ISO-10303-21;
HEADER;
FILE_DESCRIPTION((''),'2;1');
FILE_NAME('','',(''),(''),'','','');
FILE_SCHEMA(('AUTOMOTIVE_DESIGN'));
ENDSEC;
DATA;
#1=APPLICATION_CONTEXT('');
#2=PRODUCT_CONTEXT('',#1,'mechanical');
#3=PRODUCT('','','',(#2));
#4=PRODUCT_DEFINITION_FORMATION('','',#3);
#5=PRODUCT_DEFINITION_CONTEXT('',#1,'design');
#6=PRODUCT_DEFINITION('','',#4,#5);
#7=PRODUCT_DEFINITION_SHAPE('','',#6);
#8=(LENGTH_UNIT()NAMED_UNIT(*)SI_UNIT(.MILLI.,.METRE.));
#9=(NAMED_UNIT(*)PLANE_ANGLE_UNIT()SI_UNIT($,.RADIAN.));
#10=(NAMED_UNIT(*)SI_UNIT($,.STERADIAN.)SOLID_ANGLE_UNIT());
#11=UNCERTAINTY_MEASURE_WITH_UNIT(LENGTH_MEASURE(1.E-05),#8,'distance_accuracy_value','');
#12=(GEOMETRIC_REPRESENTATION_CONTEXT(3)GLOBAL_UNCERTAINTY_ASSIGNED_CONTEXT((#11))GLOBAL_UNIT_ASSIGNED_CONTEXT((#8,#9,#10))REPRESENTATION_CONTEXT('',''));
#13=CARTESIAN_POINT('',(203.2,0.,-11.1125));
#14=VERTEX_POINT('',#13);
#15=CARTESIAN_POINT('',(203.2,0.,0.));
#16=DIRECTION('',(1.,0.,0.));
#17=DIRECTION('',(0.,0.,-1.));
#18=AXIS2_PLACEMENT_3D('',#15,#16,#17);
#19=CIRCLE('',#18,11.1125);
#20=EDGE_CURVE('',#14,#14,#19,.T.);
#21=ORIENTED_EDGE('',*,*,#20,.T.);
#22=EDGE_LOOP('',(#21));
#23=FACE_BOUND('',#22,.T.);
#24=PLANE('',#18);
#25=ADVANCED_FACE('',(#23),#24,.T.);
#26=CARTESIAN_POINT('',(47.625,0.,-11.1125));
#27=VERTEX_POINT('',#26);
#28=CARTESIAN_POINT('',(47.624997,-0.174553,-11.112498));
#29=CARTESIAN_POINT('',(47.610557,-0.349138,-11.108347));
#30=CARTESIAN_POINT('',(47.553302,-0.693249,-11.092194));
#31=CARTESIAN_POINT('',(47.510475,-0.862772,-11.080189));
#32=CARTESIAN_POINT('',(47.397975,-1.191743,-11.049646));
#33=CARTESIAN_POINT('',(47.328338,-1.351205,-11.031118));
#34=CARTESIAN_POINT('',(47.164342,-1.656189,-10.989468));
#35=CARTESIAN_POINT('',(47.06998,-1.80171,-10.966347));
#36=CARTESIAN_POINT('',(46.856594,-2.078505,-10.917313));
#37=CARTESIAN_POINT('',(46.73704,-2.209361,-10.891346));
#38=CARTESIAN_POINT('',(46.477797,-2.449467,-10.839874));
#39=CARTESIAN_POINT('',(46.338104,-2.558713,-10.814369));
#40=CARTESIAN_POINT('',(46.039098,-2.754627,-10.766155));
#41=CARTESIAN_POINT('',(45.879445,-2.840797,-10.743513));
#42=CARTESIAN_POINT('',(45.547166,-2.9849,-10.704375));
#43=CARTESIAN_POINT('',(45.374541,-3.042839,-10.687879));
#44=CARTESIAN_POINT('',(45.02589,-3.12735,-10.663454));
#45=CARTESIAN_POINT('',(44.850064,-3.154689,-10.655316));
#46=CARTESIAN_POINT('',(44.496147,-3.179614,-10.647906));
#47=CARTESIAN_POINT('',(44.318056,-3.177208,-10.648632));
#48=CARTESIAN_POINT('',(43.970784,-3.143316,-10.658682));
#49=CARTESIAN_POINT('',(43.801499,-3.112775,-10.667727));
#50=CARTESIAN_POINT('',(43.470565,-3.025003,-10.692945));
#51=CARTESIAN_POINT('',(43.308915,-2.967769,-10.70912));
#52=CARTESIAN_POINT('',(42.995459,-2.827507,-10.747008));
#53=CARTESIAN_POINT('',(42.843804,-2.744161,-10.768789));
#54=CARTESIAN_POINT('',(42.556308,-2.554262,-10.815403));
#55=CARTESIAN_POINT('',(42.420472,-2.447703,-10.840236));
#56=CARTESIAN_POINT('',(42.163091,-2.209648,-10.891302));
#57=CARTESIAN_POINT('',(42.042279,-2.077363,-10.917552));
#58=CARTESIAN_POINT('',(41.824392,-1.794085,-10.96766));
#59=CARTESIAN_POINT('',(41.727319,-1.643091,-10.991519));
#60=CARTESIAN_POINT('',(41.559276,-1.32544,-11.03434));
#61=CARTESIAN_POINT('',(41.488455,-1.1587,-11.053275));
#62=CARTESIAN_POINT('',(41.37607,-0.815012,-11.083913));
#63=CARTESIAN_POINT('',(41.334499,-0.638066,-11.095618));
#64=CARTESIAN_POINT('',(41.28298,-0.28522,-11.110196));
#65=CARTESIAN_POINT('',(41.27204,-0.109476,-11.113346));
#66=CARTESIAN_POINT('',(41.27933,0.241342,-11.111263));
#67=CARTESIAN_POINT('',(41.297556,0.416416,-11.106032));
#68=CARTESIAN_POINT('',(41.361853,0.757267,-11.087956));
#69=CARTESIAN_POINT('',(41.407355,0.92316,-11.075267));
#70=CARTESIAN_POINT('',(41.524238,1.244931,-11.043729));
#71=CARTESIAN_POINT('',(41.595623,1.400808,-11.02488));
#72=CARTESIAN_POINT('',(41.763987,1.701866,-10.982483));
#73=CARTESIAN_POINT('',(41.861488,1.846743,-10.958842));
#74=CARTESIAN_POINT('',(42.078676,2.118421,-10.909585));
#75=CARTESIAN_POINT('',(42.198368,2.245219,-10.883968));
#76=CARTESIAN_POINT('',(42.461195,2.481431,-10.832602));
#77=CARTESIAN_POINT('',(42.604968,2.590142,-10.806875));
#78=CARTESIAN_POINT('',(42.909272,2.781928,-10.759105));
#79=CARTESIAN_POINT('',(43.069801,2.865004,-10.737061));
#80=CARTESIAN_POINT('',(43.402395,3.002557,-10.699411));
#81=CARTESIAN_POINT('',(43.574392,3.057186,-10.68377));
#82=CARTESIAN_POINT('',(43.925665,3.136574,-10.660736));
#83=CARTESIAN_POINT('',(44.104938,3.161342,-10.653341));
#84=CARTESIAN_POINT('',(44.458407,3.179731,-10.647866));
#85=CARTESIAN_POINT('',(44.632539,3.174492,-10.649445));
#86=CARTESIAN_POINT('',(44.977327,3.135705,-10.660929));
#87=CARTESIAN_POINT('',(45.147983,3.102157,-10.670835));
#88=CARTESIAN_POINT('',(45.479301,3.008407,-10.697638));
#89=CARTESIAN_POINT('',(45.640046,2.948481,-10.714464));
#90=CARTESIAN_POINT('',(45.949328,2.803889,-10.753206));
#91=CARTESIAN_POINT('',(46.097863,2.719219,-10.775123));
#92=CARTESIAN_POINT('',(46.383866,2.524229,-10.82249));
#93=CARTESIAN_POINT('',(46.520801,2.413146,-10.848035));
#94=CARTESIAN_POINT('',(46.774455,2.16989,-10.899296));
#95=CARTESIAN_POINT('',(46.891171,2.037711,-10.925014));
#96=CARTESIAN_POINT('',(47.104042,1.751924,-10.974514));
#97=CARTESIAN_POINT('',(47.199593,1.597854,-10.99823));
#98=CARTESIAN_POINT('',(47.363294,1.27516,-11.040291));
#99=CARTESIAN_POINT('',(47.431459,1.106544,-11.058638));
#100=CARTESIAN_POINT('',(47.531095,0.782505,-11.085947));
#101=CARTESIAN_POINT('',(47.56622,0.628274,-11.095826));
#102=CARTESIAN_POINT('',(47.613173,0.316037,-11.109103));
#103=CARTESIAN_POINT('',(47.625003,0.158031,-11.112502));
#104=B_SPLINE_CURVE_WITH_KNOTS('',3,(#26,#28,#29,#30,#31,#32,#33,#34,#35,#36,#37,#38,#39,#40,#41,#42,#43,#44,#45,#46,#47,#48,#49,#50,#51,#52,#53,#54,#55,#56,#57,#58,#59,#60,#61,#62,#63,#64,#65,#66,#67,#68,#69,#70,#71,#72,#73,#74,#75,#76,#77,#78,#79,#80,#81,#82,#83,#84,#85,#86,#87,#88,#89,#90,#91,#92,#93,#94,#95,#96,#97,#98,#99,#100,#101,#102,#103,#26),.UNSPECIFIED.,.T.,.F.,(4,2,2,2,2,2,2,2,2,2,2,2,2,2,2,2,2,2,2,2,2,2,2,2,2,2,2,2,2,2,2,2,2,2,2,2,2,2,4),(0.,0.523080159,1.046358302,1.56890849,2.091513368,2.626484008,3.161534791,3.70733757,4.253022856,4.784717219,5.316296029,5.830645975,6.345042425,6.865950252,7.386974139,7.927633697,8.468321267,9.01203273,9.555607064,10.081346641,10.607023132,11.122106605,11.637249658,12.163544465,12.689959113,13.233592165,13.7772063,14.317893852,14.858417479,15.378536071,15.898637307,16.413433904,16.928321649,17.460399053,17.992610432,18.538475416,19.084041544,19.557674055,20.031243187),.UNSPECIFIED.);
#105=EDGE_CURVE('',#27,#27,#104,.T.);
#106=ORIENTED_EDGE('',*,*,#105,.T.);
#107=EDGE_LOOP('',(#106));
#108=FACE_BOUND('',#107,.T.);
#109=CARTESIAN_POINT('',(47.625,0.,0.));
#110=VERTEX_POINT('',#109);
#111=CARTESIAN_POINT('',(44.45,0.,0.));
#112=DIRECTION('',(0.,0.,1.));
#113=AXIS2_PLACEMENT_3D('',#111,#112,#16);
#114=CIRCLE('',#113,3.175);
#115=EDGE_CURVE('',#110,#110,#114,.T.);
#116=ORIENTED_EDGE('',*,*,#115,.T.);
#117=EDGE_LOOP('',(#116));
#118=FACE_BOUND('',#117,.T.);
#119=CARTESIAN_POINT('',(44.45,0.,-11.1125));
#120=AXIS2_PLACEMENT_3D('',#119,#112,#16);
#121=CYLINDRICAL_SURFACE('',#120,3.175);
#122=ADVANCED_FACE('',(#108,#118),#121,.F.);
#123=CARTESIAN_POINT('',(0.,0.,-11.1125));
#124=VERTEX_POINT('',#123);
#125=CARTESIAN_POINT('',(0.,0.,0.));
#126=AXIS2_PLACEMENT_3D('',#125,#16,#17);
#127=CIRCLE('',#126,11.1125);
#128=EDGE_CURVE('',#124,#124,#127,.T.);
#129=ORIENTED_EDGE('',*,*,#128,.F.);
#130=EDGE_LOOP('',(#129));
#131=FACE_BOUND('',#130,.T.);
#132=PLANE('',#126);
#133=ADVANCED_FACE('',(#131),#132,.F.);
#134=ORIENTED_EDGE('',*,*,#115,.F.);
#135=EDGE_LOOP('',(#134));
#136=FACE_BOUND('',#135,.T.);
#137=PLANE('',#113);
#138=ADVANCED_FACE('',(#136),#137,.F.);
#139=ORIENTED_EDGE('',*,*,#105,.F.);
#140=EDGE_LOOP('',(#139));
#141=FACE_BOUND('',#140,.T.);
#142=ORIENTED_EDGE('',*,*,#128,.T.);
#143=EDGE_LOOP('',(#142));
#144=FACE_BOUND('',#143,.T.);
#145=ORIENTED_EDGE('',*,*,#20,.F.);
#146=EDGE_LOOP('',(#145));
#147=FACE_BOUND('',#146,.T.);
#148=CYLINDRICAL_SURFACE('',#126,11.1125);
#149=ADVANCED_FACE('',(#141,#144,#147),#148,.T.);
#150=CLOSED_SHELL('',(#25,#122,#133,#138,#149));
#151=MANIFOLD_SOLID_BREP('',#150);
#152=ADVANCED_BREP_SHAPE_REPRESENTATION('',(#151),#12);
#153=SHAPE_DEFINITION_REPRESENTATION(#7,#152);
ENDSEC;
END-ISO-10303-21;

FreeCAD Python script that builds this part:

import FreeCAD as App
import Part
import Sketcher

V = App.Vector
Q = App.Units.Quantity

doc = App.newDocument("Part")
body = doc.addObject("PartDesign::Body", "Body")

# Sketch on YZ plane
sketch1 = doc.addObject("Sketcher::SketchObject", "Sketch")
body.addObject(sketch1)
sketch1.AttachmentSupport = (doc.YZ_Plane, [""])
sketch1.MapMode = "FlatFace"
sketch1.addGeometry(Part.Circle(V(0, 0, 0), V(0, 0, 1), 11.1125), False)
sketch1.addConstraint(Sketcher.Constraint("Coincident", 0, 3, -1, 1))
sketch1.addConstraint(Sketcher.Constraint("Diameter", 0, Q("0.875 in")))

# Sketch on XY plane
sketch2 = doc.addObject("Sketcher::SketchObject", "Sketch001")
body.addObject(sketch2)
sketch2.AttachmentSupport = (doc.XY_Plane, [""])
sketch2.MapMode = "FlatFace"
sketch2.addGeometry(Part.LineSegment(V(0, 0, 0), V(203.2, 0, 0)), False)
sketch2.addConstraint(Sketcher.Constraint("Horizontal", 0))
sketch2.addConstraint(Sketcher.Constraint("Coincident", 0, 1, -1, 1))
sketch2.addConstraint(Sketcher.Constraint("DistanceX", 0, 1, 0, 2, Q("8 in")))
doc.recompute()

additivepipe = doc.addObject("PartDesign::AdditivePipe", "AdditivePipe")
body.addObject(additivepipe)
additivepipe.Profile = sketch1
additivepipe.Spine = (sketch2, ["Edge1"])

# Sketch on XY plane
sketch3 = doc.addObject("Sketcher::SketchObject", "Sketch002")
body.addObject(sketch3)
sketch3.AttachmentSupport = (doc.XY_Plane, [""])
sketch3.MapMode = "FlatFace"
sketch3.addGeometry(Part.Circle(V(44.45, 0, 0), V(0, 0, 1), 3.175), False)
sketch3.addConstraint(Sketcher.Constraint("PointOnObject", 0, 3, -1))
sketch3.addConstraint(Sketcher.Constraint("Diameter", 0, Q("0.25 in")))
sketch3.addConstraint(Sketcher.Constraint("DistanceX", -1, 1, 0, 3, Q("1.75 in")))
pocket1 = doc.addObject("PartDesign::Pocket", "Pocket")
body.addObject(pocket1)
pocket1.Profile = sketch3
pocket1.Type = "ThroughAll"

doc.recompute()
